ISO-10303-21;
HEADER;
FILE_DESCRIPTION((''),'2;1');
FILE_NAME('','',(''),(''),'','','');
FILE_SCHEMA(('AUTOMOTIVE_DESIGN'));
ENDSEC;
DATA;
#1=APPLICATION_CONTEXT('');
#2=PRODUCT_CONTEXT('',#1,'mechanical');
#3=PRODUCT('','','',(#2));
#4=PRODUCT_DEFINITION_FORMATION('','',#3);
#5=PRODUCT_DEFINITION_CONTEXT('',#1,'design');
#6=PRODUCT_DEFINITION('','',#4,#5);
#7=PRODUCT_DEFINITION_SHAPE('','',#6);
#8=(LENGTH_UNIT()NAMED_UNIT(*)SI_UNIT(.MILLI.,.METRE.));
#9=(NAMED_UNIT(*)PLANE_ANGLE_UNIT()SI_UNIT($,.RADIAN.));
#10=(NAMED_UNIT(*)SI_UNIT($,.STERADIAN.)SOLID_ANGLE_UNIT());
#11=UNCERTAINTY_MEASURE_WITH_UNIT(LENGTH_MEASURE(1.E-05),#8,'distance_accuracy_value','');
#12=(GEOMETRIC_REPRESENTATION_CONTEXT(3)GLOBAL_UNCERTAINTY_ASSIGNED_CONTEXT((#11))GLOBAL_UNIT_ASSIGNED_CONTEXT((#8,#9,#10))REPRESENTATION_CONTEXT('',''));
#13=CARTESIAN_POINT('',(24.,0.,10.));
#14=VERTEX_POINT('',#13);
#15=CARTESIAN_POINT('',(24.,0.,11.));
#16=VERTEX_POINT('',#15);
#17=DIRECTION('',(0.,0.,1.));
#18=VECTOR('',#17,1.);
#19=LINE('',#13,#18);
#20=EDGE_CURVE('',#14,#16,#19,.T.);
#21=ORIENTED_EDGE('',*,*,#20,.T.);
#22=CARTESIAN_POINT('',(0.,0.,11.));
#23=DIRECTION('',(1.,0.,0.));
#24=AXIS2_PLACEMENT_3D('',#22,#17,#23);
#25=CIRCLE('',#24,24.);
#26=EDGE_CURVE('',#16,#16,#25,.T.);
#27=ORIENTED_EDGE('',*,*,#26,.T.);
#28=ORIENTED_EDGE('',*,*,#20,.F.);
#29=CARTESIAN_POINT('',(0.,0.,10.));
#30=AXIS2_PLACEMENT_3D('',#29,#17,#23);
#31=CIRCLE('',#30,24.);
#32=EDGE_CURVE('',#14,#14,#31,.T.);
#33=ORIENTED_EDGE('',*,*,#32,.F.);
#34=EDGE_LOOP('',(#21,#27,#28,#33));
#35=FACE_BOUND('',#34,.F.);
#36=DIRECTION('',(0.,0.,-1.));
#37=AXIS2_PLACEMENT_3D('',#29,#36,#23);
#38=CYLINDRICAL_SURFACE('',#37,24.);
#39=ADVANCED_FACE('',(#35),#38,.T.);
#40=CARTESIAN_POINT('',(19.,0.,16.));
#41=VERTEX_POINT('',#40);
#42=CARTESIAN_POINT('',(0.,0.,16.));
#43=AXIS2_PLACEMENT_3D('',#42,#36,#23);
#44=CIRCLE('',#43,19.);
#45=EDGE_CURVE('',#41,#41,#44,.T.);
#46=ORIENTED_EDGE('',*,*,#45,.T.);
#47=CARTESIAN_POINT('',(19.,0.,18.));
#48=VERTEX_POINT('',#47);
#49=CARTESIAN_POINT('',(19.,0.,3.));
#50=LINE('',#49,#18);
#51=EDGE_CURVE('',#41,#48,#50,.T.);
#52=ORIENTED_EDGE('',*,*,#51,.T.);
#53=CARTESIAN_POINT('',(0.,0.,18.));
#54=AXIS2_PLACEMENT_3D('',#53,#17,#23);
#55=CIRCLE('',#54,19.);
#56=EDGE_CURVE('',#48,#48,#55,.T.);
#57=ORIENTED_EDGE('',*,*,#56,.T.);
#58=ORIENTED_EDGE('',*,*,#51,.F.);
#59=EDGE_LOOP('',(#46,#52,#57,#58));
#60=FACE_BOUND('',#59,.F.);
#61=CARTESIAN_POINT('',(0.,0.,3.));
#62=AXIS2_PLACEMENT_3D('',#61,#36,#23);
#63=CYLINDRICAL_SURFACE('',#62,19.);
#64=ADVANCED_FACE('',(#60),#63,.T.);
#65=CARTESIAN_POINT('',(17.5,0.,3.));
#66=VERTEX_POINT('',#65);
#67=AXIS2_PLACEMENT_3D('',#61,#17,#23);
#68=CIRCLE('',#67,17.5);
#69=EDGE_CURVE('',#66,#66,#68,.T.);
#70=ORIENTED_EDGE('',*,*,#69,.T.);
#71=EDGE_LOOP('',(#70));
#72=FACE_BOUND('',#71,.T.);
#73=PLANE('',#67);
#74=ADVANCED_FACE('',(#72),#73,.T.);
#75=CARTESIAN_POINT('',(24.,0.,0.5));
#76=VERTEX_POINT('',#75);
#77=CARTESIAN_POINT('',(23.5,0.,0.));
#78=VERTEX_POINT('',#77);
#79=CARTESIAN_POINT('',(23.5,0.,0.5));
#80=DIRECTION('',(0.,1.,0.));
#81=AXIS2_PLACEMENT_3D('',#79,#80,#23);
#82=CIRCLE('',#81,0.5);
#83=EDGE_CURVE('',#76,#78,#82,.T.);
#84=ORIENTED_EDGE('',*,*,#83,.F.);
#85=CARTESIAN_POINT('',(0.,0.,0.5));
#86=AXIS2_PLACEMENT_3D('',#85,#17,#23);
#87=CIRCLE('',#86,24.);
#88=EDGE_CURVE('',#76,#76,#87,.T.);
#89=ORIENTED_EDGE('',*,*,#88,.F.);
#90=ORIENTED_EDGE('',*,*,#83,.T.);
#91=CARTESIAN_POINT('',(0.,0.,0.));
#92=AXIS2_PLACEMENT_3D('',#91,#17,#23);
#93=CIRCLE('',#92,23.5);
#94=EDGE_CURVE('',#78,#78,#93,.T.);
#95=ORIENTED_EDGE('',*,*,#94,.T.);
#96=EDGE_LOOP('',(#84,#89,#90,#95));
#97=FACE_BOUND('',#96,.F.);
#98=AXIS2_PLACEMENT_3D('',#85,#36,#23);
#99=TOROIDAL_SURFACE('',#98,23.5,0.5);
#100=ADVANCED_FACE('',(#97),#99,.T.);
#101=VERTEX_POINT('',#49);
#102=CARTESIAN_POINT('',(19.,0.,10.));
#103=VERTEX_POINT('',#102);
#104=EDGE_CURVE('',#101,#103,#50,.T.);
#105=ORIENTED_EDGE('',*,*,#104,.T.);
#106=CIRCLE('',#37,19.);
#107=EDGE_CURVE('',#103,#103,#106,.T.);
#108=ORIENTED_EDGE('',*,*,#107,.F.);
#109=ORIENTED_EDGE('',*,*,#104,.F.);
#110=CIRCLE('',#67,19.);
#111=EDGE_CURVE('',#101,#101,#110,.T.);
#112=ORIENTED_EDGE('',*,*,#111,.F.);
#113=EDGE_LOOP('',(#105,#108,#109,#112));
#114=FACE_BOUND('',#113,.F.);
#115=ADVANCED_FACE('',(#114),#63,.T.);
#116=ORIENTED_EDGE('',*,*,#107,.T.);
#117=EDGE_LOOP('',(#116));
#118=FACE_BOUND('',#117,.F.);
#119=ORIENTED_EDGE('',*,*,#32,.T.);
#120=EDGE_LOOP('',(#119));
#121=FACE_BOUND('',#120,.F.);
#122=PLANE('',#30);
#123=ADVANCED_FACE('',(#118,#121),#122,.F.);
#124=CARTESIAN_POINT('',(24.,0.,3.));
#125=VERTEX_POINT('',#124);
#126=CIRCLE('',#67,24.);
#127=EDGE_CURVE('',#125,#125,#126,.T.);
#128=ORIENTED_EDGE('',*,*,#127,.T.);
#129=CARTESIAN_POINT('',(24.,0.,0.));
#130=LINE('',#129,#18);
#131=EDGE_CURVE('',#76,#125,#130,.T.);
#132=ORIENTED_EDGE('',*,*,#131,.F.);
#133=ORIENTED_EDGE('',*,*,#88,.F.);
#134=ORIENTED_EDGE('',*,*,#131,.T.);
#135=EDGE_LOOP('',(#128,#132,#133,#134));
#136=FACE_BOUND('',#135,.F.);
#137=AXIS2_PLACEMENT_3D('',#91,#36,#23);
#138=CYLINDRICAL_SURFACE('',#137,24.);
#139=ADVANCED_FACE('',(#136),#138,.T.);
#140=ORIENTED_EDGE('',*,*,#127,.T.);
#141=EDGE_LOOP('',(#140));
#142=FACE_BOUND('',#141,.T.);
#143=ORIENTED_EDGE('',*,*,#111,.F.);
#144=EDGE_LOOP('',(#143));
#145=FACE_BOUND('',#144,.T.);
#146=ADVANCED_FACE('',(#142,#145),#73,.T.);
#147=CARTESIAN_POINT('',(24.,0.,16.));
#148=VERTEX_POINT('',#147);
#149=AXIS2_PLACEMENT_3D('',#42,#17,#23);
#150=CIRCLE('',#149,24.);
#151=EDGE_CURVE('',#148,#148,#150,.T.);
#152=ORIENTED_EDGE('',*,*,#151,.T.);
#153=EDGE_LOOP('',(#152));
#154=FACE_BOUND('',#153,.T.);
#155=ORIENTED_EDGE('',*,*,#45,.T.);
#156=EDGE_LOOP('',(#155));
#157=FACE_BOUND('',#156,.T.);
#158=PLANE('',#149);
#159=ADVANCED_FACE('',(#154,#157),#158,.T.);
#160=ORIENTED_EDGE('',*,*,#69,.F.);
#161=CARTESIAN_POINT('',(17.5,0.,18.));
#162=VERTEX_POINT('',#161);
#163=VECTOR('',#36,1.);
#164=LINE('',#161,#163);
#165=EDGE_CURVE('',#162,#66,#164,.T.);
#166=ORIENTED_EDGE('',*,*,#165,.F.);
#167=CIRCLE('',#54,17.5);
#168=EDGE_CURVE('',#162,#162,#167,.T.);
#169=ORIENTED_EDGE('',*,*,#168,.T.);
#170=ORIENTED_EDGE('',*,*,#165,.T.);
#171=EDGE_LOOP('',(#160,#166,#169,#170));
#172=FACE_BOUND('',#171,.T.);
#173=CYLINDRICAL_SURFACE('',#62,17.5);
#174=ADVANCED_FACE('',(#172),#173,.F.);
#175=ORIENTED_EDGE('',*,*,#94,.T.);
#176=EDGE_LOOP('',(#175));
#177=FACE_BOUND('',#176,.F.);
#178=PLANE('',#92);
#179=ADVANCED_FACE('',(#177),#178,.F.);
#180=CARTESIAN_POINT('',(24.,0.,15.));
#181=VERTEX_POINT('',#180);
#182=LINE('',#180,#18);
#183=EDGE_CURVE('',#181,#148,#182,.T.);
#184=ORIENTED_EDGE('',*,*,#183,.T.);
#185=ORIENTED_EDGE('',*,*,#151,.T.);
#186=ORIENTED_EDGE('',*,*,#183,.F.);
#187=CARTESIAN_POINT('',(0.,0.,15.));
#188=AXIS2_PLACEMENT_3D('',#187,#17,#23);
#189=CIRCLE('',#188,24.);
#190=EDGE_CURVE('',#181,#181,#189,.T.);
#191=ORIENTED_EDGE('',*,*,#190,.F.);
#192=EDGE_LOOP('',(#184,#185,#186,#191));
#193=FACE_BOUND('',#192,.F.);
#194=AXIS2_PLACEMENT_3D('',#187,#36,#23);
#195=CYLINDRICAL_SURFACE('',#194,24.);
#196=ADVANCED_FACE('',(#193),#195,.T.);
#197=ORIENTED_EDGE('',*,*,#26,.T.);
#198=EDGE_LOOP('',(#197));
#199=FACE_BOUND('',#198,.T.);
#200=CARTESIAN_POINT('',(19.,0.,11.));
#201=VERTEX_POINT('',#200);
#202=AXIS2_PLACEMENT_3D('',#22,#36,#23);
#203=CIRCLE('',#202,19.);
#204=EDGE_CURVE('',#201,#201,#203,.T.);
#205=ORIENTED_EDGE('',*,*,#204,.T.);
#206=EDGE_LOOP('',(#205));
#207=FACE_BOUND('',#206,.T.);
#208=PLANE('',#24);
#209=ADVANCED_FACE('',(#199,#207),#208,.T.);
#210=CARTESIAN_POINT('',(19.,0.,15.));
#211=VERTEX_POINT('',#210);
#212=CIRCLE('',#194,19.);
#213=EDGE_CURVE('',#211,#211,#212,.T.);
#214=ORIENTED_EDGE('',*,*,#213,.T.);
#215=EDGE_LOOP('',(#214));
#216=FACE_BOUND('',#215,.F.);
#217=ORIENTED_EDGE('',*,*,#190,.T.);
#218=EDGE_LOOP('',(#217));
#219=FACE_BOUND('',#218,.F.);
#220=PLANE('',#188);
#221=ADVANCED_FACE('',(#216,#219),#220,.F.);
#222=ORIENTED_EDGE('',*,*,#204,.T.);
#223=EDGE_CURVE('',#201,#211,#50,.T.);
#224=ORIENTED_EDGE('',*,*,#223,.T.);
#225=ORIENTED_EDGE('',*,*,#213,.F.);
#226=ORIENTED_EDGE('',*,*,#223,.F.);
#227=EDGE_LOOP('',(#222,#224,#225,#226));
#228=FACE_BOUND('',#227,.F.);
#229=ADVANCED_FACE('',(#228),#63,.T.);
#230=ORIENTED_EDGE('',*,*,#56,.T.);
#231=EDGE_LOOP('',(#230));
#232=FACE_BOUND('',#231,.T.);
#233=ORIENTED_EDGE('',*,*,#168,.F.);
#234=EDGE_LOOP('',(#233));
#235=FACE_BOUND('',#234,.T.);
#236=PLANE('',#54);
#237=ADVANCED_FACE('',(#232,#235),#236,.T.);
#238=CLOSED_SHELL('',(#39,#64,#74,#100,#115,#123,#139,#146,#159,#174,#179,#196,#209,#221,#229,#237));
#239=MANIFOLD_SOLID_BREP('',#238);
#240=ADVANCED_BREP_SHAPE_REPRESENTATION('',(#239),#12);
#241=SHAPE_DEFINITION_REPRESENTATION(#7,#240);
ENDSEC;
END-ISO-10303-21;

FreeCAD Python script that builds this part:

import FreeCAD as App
import Part
import Sketcher
Q = App.Units.Quantity


def edges_at(feature, points):
    """Names of the edges that pass closest to the given points."""
    edges = feature.Shape.Edges
    near = lambda p: min(range(len(edges)), key=lambda i: edges[i].distToShape(Part.Vertex(*p))[0])
    return sorted({f"Edge{near(p) + 1}" for p in points})

doc = App.newDocument("Part")
body = doc.addObject("PartDesign::Body", "Body")

sketch1 = doc.addObject("Sketcher::SketchObject", "Sketch")
body.addObject(sketch1)
sketch1.AttachmentSupport = (doc.XY_Plane, [""])
sketch1.MapMode = "FlatFace"
sketch1.addGeometry(Part.Circle(App.Vector(0, 0, 0), App.Vector(0, 0, 1), 24), False)
sketch1.addConstraint([
    Sketcher.Constraint("Coincident", 0, 3, -1, 1),
    Sketcher.Constraint("Diameter", 0, Q("48 mm")),
])
pad1 = doc.addObject("PartDesign::Pad", "Pad")
body.addObject(pad1)
pad1.Profile = sketch1
pad1.Length = 3

sketch2 = doc.addObject("Sketcher::SketchObject", "Sketch001")
body.addObject(sketch2)
sketch2.AttachmentSupport = (doc.XY_Plane, [""])
sketch2.MapMode = "FlatFace"
sketch2.AttachmentOffset = App.Placement(App.Vector(0, 0, 3), App.Rotation())
sketch2.addGeometry([
    Part.Circle(App.Vector(0, 0, 0), App.Vector(0, 0, 1), 19),
    Part.Circle(App.Vector(0, 0, 0), App.Vector(0, 0, 1), 18),
], False)
sketch2.addConstraint([
    Sketcher.Constraint("Coincident", 0, 3, -1, 1),
    Sketcher.Constraint("Coincident", 1, 3, -1, 1),
    Sketcher.Constraint("Diameter", 0, Q("38 mm")),
    Sketcher.Constraint("Diameter", 1, Q("35 mm")),
])
pad2 = doc.addObject("PartDesign::Pad", "Pad001")
body.addObject(pad2)
pad2.Profile = sketch2
pad2.Length = 15

sketch3 = doc.addObject("Sketcher::SketchObject", "Sketch002")
body.addObject(sketch3)
sketch3.AttachmentSupport = (doc.XY_Plane, [""])
sketch3.MapMode = "FlatFace"
sketch3.AttachmentOffset = App.Placement(App.Vector(0, 0, 10), App.Rotation())
sketch3.addGeometry([
    Part.Circle(App.Vector(0, 0, 0), App.Vector(0, 0, 1), 24),
    Part.Circle(App.Vector(0, 0, 0), App.Vector(0, 0, 1), 18),
], False)
sketch3.addConstraint([
    Sketcher.Constraint("Coincident", 0, 3, -1, 1),
    Sketcher.Constraint("Coincident", 1, 3, -1, 1),
    Sketcher.Constraint("Diameter", 0, Q("48 mm")),
    Sketcher.Constraint("Diameter", 1, Q("35 mm")),
])
pad3 = doc.addObject("PartDesign::Pad", "Pad002")
body.addObject(pad3)
pad3.Profile = sketch3
pad3.Length = 1

sketch4 = doc.addObject("Sketcher::SketchObject", "Sketch003")
body.addObject(sketch4)
sketch4.AttachmentSupport = (doc.XY_Plane, [""])
sketch4.MapMode = "FlatFace"
sketch4.AttachmentOffset = App.Placement(App.Vector(0, 0, 15), App.Rotation())
sketch4.addGeometry([
    Part.Circle(App.Vector(0, 0, 0), App.Vector(0, 0, 1), 24),
    Part.Circle(App.Vector(0, 0, 0), App.Vector(0, 0, 1), 18),
], False)
sketch4.addConstraint([
    Sketcher.Constraint("Coincident", 0, 3, -1, 1),
    Sketcher.Constraint("Coincident", 1, 3, -1, 1),
    Sketcher.Constraint("Diameter", 0, Q("48 mm")),
    Sketcher.Constraint("Diameter", 1, Q("35 mm")),
])
pad4 = doc.addObject("PartDesign::Pad", "Pad003")
body.addObject(pad4)
pad4.Profile = sketch4
pad4.Length = 1
doc.recompute()

fillet = doc.addObject("PartDesign::Fillet", "Fillet")
body.addObject(fillet)
fillet.Base = (pad4, edges_at(pad4, [(-24, 0, 0)]))
fillet.Radius = 0.5

doc.recompute()
